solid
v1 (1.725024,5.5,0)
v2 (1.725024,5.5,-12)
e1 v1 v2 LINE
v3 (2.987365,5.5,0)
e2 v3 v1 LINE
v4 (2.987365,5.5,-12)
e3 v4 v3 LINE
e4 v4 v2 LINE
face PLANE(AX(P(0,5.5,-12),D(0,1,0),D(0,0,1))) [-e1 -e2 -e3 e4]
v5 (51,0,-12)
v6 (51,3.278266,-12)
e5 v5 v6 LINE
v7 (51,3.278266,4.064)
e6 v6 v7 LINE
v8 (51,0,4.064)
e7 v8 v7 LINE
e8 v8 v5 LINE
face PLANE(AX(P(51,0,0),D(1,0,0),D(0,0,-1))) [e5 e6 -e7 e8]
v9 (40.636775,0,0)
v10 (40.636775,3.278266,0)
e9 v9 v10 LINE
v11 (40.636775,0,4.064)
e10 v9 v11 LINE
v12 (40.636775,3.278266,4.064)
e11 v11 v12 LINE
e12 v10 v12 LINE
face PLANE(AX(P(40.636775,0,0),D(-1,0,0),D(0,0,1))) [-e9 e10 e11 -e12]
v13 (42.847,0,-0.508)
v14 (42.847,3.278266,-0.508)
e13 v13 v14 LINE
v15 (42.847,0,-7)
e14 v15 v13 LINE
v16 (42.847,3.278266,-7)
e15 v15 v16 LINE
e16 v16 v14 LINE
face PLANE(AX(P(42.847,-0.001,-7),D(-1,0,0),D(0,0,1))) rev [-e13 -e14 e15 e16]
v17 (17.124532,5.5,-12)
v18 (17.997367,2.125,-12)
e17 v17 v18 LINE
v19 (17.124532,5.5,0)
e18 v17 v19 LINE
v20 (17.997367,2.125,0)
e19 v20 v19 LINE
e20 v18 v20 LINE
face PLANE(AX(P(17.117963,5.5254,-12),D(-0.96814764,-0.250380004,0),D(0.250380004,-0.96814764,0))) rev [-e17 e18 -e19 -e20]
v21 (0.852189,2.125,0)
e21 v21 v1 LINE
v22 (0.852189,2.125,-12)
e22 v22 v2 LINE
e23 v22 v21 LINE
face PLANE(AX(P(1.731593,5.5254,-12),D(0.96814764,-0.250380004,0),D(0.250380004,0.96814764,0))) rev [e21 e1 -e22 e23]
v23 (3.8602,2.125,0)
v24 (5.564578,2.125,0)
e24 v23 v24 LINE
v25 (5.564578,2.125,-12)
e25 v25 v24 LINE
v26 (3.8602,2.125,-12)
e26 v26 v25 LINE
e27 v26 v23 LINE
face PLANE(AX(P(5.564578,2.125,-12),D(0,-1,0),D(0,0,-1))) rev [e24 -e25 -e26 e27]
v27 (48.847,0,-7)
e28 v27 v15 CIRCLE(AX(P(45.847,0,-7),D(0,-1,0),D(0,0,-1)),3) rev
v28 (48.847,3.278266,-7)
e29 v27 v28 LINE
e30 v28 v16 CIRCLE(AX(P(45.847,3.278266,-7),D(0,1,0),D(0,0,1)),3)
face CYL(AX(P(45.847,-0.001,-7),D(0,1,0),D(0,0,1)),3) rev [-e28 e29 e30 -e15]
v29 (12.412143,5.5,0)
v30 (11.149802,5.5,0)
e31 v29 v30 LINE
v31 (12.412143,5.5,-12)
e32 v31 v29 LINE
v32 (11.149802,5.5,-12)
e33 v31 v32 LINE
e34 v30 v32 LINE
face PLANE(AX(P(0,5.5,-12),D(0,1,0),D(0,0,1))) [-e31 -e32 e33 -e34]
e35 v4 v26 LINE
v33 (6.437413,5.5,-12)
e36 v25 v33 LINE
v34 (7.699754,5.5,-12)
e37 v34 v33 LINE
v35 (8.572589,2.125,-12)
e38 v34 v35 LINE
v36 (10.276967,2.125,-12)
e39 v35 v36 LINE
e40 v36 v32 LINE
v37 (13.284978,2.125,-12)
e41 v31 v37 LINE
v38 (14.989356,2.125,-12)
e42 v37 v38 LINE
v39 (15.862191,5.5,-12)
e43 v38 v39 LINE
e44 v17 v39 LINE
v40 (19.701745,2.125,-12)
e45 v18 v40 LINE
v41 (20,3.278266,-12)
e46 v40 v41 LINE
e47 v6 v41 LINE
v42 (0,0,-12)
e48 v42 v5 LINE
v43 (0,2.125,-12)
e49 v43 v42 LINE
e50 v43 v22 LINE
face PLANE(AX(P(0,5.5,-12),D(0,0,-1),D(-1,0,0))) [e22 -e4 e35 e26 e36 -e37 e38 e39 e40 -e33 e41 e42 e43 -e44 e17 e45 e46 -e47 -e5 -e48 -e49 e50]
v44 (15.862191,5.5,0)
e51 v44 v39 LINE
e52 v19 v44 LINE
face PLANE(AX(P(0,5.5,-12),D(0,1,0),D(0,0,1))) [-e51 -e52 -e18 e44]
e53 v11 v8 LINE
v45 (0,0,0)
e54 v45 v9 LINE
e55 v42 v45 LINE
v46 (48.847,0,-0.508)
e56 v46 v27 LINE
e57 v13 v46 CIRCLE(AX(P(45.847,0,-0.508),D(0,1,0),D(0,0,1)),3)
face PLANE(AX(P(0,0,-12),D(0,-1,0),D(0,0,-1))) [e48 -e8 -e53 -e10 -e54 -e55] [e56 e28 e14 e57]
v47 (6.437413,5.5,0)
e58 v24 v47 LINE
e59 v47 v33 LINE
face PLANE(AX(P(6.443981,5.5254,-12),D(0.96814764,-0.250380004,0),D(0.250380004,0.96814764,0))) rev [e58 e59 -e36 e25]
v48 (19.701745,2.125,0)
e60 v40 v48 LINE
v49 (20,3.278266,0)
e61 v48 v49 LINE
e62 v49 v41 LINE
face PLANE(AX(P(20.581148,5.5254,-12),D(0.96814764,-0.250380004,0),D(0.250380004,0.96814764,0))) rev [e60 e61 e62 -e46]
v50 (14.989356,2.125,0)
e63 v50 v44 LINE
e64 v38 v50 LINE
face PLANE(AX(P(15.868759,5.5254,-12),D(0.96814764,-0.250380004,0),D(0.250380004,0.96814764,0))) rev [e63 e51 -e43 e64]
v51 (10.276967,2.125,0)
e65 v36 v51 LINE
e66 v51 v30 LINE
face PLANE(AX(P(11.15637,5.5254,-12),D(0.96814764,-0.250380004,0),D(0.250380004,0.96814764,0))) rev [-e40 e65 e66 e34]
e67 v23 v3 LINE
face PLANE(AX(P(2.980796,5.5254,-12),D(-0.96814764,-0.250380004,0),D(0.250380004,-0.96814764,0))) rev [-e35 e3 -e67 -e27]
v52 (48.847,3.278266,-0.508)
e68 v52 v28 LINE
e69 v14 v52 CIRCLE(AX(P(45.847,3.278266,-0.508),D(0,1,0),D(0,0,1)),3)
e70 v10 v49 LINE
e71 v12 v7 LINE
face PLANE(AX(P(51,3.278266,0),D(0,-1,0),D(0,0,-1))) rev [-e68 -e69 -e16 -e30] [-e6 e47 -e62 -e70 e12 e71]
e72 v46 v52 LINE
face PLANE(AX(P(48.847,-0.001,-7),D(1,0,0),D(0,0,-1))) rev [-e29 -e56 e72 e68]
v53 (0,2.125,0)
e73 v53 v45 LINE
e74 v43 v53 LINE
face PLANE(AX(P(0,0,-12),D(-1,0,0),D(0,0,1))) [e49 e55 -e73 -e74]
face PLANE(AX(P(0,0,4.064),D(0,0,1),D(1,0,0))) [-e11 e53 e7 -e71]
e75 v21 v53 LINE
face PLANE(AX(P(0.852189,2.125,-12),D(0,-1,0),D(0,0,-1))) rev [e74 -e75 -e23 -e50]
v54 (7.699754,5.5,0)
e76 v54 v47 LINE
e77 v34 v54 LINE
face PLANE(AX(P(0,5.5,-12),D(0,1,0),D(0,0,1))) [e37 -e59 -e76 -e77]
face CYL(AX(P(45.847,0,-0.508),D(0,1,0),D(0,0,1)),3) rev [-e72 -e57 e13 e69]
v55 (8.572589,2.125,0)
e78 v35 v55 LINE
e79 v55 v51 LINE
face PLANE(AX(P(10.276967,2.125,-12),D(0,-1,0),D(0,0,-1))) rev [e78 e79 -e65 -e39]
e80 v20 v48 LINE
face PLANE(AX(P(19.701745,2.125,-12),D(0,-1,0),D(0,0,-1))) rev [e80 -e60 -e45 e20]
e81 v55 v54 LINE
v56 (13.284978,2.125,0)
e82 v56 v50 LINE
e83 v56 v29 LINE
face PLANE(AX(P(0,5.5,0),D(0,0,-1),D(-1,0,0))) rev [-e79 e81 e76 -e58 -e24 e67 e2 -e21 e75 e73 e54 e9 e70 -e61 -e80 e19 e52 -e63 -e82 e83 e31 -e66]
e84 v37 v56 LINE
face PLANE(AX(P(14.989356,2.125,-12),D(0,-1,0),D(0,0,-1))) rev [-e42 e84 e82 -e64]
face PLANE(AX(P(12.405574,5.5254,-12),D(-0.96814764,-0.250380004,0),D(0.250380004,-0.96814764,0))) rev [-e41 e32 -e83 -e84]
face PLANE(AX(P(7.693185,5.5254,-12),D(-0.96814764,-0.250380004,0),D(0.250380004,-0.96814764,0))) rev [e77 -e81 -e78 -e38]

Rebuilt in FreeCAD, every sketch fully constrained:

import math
import FreeCAD as App
import Part
import Sketcher

V = App.Vector
Q = App.Units.Quantity

doc = App.newDocument("Part")
body = doc.addObject("PartDesign::Body", "Body")

# Sketch on XY plane
sketch1 = doc.addObject("Sketcher::SketchObject", "Sketch")
body.addObject(sketch1)
sketch1.AttachmentSupport = (doc.XY_Plane, [""])
sketch1.MapMode = "FlatFace"
sketch1.addGeometry([
    Part.LineSegment(V(0, 6, 0), V(0, 0, 0)),
    Part.LineSegment(V(0, 0, 0), V(20, 0, 0)),
    Part.LineSegment(V(20, 0, 0), V(20, 6, 0)),
    Part.LineSegment(V(20, 6, 0), V(0, 6, 0)),
], False)
sketch1.addConstraint([
    Sketcher.Constraint("Coincident", 0, 2, 1, 1),
    Sketcher.Constraint("Coincident", 1, 2, 2, 1),
    Sketcher.Constraint("Coincident", 2, 2, 3, 1),
    Sketcher.Constraint("Coincident", 3, 2, 0, 1),
    Sketcher.Constraint("Vertical", 0),
    Sketcher.Constraint("Horizontal", 1),
    Sketcher.Constraint("Vertical", 2),
    Sketcher.Constraint("Horizontal", 3),
    Sketcher.Constraint("Coincident", 0, 2, -1, 1),
    Sketcher.Constraint("DistanceX", 1, 1, 1, 2, Q("20 mm")),
    Sketcher.Constraint("DistanceY", 0, 2, 0, 1, Q("5.5 mm")),
])
pad1 = doc.addObject("PartDesign::Pad", "Pad")
body.addObject(pad1)
pad1.Profile = sketch1
pad1.Length = 12
pad1.Reversed = True

# Sketch on XY plane
sketch2 = doc.addObject("Sketcher::SketchObject", "Sketch001")
body.addObject(sketch2)
sketch2.AttachmentSupport = (doc.XY_Plane, [""])
sketch2.MapMode = "FlatFace"
sketch2.addGeometry([
    Part.LineSegment(V(-0.9, 2.1, 0), V(0.9, 2.1, 0)),
    Part.LineSegment(V(0.9, 2.1, 0), V(1.7, 5.5, 0)),
    Part.LineSegment(V(1.7, 5.5, 0), V(-1.7, 5.5, 0)),
    Part.LineSegment(V(-1.7, 5.5, 0), V(-0.9, 2.1, 0)),
], False)
sketch2.addConstraint([
    Sketcher.Constraint("Coincident", 0, 2, 1, 1),
    Sketcher.Constraint("Coincident", 1, 2, 2, 1),
    Sketcher.Constraint("Coincident", 2, 2, 3, 1),
    Sketcher.Constraint("Coincident", 3, 2, 0, 1),
    Sketcher.Constraint("Horizontal", 0),
    Sketcher.Constraint("Horizontal", 2),
    Sketcher.Constraint("Equal", 1, 3),
    Sketcher.Constraint("Angle", 1, Q("75.5 deg")),
    Sketcher.Constraint("DistanceY", -1, 1, 0, 2, Q("2.125 mm")),
    Sketcher.Constraint("DistanceX", 0, 1, 0, 2, Q("1.704379 mm")),
    Sketcher.Constraint("DistanceY", -1, 1, 1, 2, Q("5.5254 mm")),
    Sketcher.Constraint("DistanceX", -1, 1, 0, 2, Q("0.852189 mm")),
])
pocket1 = doc.addObject("PartDesign::Pocket", "Pocket")
body.addObject(pocket1)
pocket1.Profile = sketch2
pocket1.Type = "ThroughAll"
doc.recompute()

linearpattern = doc.addObject("PartDesign::LinearPattern", "LinearPattern")
body.addObject(linearpattern)
linearpattern.Originals = [pocket1]
linearpattern.Direction = (doc.X_Axis, [""])
linearpattern.Mode = "offset"
linearpattern.Offset = 4.712389
linearpattern.Occurrences = 5
body.Tip = linearpattern

# Sketch on YZ plane
sketch3 = doc.addObject("Sketcher::SketchObject", "Sketch002")
body.addObject(sketch3)
sketch3.AttachmentSupport = (doc.YZ_Plane, [""])
sketch3.MapMode = "FlatFace"
sketch3.AttachmentOffset = App.Placement(V(0, 0, 20), App.Rotation())
sketch3.addGeometry([
    Part.LineSegment(V(3.3, 0, 0), V(0, 0, 0)),
    Part.LineSegment(V(0, 0, 0), V(0, -12, 0)),
    Part.LineSegment(V(0, -12, 0), V(3.3, -12, 0)),
    Part.LineSegment(V(3.3, -12, 0), V(3.3, 0, 0)),
], False)
sketch3.addConstraint([
    Sketcher.Constraint("Coincident", 0, 2, 1, 1),
    Sketcher.Constraint("Coincident", 1, 2, 2, 1),
    Sketcher.Constraint("Coincident", 2, 2, 3, 1),
    Sketcher.Constraint("Coincident", 3, 2, 0, 1),
    Sketcher.Constraint("Horizontal", 0),
    Sketcher.Constraint("Vertical", 1),
    Sketcher.Constraint("Horizontal", 2),
    Sketcher.Constraint("Vertical", 3),
    Sketcher.Constraint("Coincident", 0, 2, -1, 1),
    Sketcher.Constraint("DistanceY", 1, 2, 1, 1, Q("12 mm")),
    Sketcher.Constraint("DistanceX", 0, 2, 0, 1, Q("3.278266 mm")),
])
pad2 = doc.addObject("PartDesign::Pad", "Pad001")
body.addObject(pad2)
pad2.Profile = sketch3
pad2.Length = 31

# Sketch on XZ plane
sketch4 = doc.addObject("Sketcher::SketchObject", "Sketch003")
body.addObject(sketch4)
sketch4.AttachmentSupport = (doc.XZ_Plane, [""])
sketch4.MapMode = "FlatFace"
sketch4.AttachmentOffset = App.Placement(V(0, 0, -3.278266), App.Rotation())
sketch4.addGeometry([
    Part.LineSegment(V(48.8, -5, 0), V(48.8, -7, 0)),
    Part.ArcOfCircle(Part.Circle(V(45.8, -7, 0), V(0, 0, 1), 3), math.radians(180), math.radians(360)),
    Part.LineSegment(V(42.8, -7, 0), V(42.8, -5, 0)),
    Part.ArcOfCircle(Part.Circle(V(45.8, -5, 0), V(0, 0, 1), 3), math.radians(0), math.radians(180)),
], False)
sketch4.addConstraint([
    Sketcher.Constraint("Tangent", 0, 2, 1, 2),
    Sketcher.Constraint("Tangent", 1, 1, 2, 1),
    Sketcher.Constraint("Tangent", 2, 2, 3, 2),
    Sketcher.Constraint("Tangent", 3, 1, 0, 1),
    Sketcher.Constraint("Vertical", 0),
    Sketcher.Constraint("Vertical", 2),
    Sketcher.Constraint("Radius", 1, Q("3 mm")),
    Sketcher.Constraint("DistanceY", 0, 2, 0, 1, Q("2 mm")),
    Sketcher.Constraint("DistanceY", 1, 3, -1, 1, Q("7 mm")),
    Sketcher.Constraint("DistanceX", -1, 1, 1, 3, Q("45.847 mm")),
])
pocket2 = doc.addObject("PartDesign::Pocket", "Pocket001")
body.addObject(pocket2)
pocket2.Profile = sketch4
pocket2.Type = "UpToFirst"
pocket2.Reversed = True

# Sketch on XZ plane
sketch5 = doc.addObject("Sketcher::SketchObject", "Sketch004")
body.addObject(sketch5)
sketch5.AttachmentSupport = (doc.XZ_Plane, [""])
sketch5.MapMode = "FlatFace"
sketch5.AttachmentOffset = App.Placement(V(0, 0, -3.278266), App.Rotation())
sketch5.addGeometry([
    Part.LineSegment(V(42.9, 0, 0), V(40.6, 0, 0)),  # 0
    Part.LineSegment(V(40.6, 0, 0), V(40.6, 4.1, 0)),  # 1
    Part.LineSegment(V(40.6, 4.1, 0), V(51, 4.1, 0)),  # 2
    Part.LineSegment(V(51, 4.1, 0), V(51, 0, 0)),  # 3
    Part.LineSegment(V(51, 0, 0), V(48.8, 0, 0)),  # 4
    Part.ArcOfCircle(Part.Circle(V(45.8, -0.5, 0), V(0, 0, 1), 3), math.radians(10), math.radians(170)),  # 5
], False)
sketch5.addConstraint([
    Sketcher.Constraint("Coincident", 0, 2, 1, 1),
    Sketcher.Constraint("Coincident", 1, 2, 2, 1),
    Sketcher.Constraint("Coincident", 2, 2, 3, 1),
    Sketcher.Constraint("Coincident", 3, 2, 4, 1),
    Sketcher.Constraint("Coincident", 4, 2, 5, 1),
    Sketcher.Constraint("Coincident", 5, 2, 0, 1),
    Sketcher.Constraint("Horizontal", 0),
    Sketcher.Constraint("Vertical", 1),
    Sketcher.Constraint("Horizontal", 2),
    Sketcher.Constraint("Vertical", 3),
    Sketcher.Constraint("Horizontal", 4),
    Sketcher.Constraint("PointOnObject", 0, 2, -1),
    Sketcher.Constraint("PointOnObject", 3, 2, -1),
    Sketcher.Constraint("Radius", 5, Q("3 mm")),
    Sketcher.Constraint("DistanceX", -1, 1, 2, 2, Q("51 mm")),
    Sketcher.Constraint("DistanceY", 1, 1, 1, 2, Q("4.064 mm")),
    Sketcher.Constraint("DistanceX", -1, 1, 5, 3, Q("45.847 mm")),
    Sketcher.Constraint("DistanceY", 5, 3, -1, 1, Q("0.508 mm")),
    Sketcher.Constraint("DistanceX", 0, 2, 0, 1, Q("2.253548 mm")),
])
pad3 = doc.addObject("PartDesign::Pad", "Pad002")
body.addObject(pad3)
pad3.Profile = sketch5
pad3.Length = 3.278266

# Sketch on XZ plane
sketch6 = doc.addObject("Sketcher::SketchObject", "Sketch005")
body.addObject(sketch6)
sketch6.AttachmentSupport = (doc.XZ_Plane, [""])
sketch6.MapMode = "FlatFace"
sketch6.AttachmentOffset = App.Placement(V(0, 0, -3.278266), App.Rotation())
sketch6.addGeometry([
    Part.LineSegment(V(48.8, -0.5, 0), V(48.8, -7, 0)),
    Part.ArcOfCircle(Part.Circle(V(45.8, -7, 0), V(0, 0, 1), 3), math.radians(180), math.radians(360)),
    Part.LineSegment(V(42.8, -7, 0), V(42.8, -0.5, 0)),
    Part.ArcOfCircle(Part.Circle(V(45.8, -0.5, 0), V(0, 0, 1), 3), math.radians(0), math.radians(180)),
], False)
sketch6.addConstraint([
    Sketcher.Constraint("Tangent", 0, 2, 1, 2),
    Sketcher.Constraint("Tangent", 1, 1, 2, 1),
    Sketcher.Constraint("Tangent", 2, 2, 3, 2),
    Sketcher.Constraint("Tangent", 3, 1, 0, 1),
    Sketcher.Constraint("Vertical", 0),
    Sketcher.Constraint("Vertical", 2),
    Sketcher.Constraint("Radius", 1, Q("3 mm")),
    Sketcher.Constraint("DistanceY", 1, 3, -1, 1, Q("7 mm")),
    Sketcher.Constraint("DistanceY", 0, 2, 0, 1, Q("6.492 mm")),
    Sketcher.Constraint("DistanceX", -1, 1, 1, 3, Q("45.847 mm")),
])
pocket3 = doc.addObject("PartDesign::Pocket", "Pocket002")
body.addObject(pocket3)
pocket3.Profile = sketch6
pocket3.Length = 22.5
pocket3.Reversed = True

doc.recompute()
